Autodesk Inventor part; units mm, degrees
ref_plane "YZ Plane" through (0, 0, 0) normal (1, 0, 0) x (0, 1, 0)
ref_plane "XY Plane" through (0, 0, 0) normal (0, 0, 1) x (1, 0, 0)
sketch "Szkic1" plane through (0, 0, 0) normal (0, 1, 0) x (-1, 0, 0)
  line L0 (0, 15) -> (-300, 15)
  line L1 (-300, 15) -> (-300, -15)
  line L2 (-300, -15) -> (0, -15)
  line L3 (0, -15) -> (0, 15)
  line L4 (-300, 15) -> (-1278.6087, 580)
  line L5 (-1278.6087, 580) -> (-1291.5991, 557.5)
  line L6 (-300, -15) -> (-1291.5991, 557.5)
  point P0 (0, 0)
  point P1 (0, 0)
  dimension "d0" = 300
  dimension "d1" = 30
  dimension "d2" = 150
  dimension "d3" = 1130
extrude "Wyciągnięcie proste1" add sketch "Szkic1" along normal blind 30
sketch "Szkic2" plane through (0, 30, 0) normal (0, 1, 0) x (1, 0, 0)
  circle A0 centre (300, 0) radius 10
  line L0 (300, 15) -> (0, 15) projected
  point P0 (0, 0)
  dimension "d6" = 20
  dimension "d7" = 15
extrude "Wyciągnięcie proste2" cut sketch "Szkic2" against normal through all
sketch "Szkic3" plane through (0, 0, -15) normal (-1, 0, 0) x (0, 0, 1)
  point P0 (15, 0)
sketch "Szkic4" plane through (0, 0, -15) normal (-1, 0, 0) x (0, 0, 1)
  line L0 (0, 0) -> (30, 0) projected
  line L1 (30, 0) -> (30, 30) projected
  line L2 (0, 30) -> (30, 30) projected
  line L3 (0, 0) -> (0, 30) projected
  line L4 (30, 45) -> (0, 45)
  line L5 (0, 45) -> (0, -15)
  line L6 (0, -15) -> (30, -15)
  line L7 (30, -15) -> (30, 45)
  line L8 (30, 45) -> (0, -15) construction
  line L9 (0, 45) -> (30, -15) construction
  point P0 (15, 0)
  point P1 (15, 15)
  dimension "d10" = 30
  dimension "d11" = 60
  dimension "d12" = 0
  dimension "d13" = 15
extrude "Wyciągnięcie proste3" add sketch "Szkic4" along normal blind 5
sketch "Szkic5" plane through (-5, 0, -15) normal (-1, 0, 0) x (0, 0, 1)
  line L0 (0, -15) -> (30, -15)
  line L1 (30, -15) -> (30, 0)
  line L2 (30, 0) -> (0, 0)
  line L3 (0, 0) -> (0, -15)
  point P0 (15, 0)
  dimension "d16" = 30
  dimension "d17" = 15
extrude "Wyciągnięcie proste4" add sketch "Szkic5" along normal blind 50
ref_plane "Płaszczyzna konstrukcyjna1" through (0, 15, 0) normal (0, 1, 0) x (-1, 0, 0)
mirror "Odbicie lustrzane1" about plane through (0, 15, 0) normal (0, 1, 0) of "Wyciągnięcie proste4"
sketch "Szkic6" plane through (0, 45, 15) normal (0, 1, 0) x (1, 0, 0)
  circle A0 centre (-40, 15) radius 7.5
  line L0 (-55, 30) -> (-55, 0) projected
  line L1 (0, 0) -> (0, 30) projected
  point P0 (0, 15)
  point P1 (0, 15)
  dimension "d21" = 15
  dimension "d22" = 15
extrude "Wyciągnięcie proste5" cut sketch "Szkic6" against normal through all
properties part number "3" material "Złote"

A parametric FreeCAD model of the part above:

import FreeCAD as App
import Part
import Sketcher
from FreeCAD import Vector
Q = App.Units.Quantity


def add_polygon(sketch, points):
    """Adds a closed chain of lines whose ends are joined by coincident constraints."""
    first, n = sketch.GeometryCount, len(points)
    for a, b in zip(points, points[1:] + points[:1]):
        sketch.addGeometry(Part.LineSegment(App.Vector(*a, 0), App.Vector(*b, 0)), False)
    for i in range(n):
        sketch.addConstraint(Sketcher.Constraint("Coincident", first + i, 2, first + (i + 1) % n, 1))

doc = App.newDocument("Part")
body = doc.addObject("PartDesign::Body", "Body")

# Sketch on XZ plane
sketch1 = doc.addObject("Sketcher::SketchObject", "Sketch")
body.addObject(sketch1)
sketch1.AttachmentSupport = (doc.XZ_Plane, [""])
sketch1.MapMode = "FlatFace"
add_polygon(sketch1, [(0, -15), (0, 15), (300, 15), (1279, 580), (1292, 558), (300, -15)])  # lines 0-5
sketch1.addConstraint([
    Sketcher.Constraint("Vertical", 0),
    Sketcher.Constraint("Horizontal", 1),
    Sketcher.Constraint("Horizontal", 5),
    Sketcher.Constraint("Symmetric", 0, 2, 5, 2, -1, 1),
    Sketcher.Constraint("Perpendicular", 2, 3),
    Sketcher.Constraint("Perpendicular", 3, 4),
    Sketcher.Constraint("Vertical", 1, 2, 4, 2),
    Sketcher.Constraint("DistanceX", 1, 1, 1, 2, Q("300 mm")),
    Sketcher.Constraint("DistanceY", 0, 1, 0, 2, Q("30 mm")),
    Sketcher.Constraint("Angle", 2, Q("30 deg")),
    Sketcher.Constraint("Distance", 2, Q("1130 mm")),
])
pad1 = doc.addObject("PartDesign::Pad", "Pad")
body.addObject(pad1)
pad1.Profile = sketch1
pad1.Length = 30
pad1.Reversed = True

# Sketch on XZ plane
sketch2 = doc.addObject("Sketcher::SketchObject", "Sketch001")
body.addObject(sketch2)
sketch2.AttachmentSupport = (doc.XZ_Plane, [""])
sketch2.MapMode = "FlatFace"
sketch2.AttachmentOffset = App.Placement(Vector(0, 0, -30), App.Rotation())
sketch2.addGeometry(Part.Circle(Vector(300, 0, 0), Vector(0, 0, 1), 10), False)
sketch2.addConstraint([
    Sketcher.Constraint("PointOnObject", 0, 3, -1),
    Sketcher.Constraint("Diameter", 0, Q("20 mm")),
    Sketcher.Constraint("DistanceX", -1, 1, 0, 3, Q("300 mm")),
])
pocket1 = doc.addObject("PartDesign::Pocket", "Pocket")
body.addObject(pocket1)
pocket1.Profile = sketch2
pocket1.Type = "ThroughAll"
pocket1.Reversed = True

# Sketch on YZ plane
sketch3 = doc.addObject("Sketcher::SketchObject", "Sketch002")
body.addObject(sketch3)
sketch3.AttachmentSupport = (doc.YZ_Plane, [""])
sketch3.MapMode = "FlatFace"
add_polygon(sketch3, [(-15, -15), (-15, 15), (45, 15), (45, -15)])  # lines 0-3
sketch3.addConstraint([
    Sketcher.Constraint("Vertical", 0),
    Sketcher.Constraint("Horizontal", 1),
    Sketcher.Constraint("Vertical", 2),
    Sketcher.Constraint("Horizontal", 3),
    Sketcher.Constraint("DistanceX", 1, 1, 1, 2, Q("60 mm")),
    Sketcher.Constraint("DistanceY", 0, 1, 0, 2, Q("30 mm")),
    Sketcher.Constraint("DistanceX", 0, 2, -1, 1, Q("15 mm")),
    Sketcher.Constraint("DistanceY", -1, 1, 0, 2, Q("15 mm")),
])
pad2 = doc.addObject("PartDesign::Pad", "Pad001")
body.addObject(pad2)
pad2.Profile = sketch3
pad2.Length = 5
pad2.Reversed = True

# Sketch on YZ plane
sketch4 = doc.addObject("Sketcher::SketchObject", "Sketch003")
body.addObject(sketch4)
sketch4.AttachmentSupport = (doc.YZ_Plane, [""])
sketch4.MapMode = "FlatFace"
sketch4.AttachmentOffset = App.Placement(Vector(0, 0, -5), App.Rotation())
add_polygon(sketch4, [(0, -15), (-15, -15), (-15, 15), (0, 15)])  # lines 0-3
sketch4.addConstraint([
    Sketcher.Constraint("Horizontal", 0),
    Sketcher.Constraint("Vertical", 1),
    Sketcher.Constraint("Horizontal", 2),
    Sketcher.Constraint("Vertical", 3),
    Sketcher.Constraint("Symmetric", 2, 2, 3, 2, -1, 1),
    Sketcher.Constraint("DistanceX", 0, 2, 0, 1, Q("15 mm")),
    Sketcher.Constraint("DistanceY", 1, 1, 1, 2, Q("30 mm")),
])
pad3 = doc.addObject("PartDesign::Pad", "Pad002")
body.addObject(pad3)
pad3.Profile = sketch4
pad3.Length = 50
pad3.Reversed = True
doc.recompute()

datumplane = doc.addObject("PartDesign::Plane", "DatumPlane")
body.addObject(datumplane)
datumplane.AttachmentSupport = (doc.XZ_Plane, [""])
datumplane.MapMode = "FlatFace"
datumplane.AttachmentOffset = App.Placement(Vector(0, 0, -15), App.Rotation())
mirrored = doc.addObject("PartDesign::Mirrored", "Mirrored")
body.addObject(mirrored)
mirrored.Originals = [pad3]
mirrored.MirrorPlane = (datumplane, [""])
body.Tip = mirrored

# Sketch on XZ plane
sketch5 = doc.addObject("Sketcher::SketchObject", "Sketch004")
body.addObject(sketch5)
sketch5.AttachmentSupport = (doc.XZ_Plane, [""])
sketch5.MapMode = "FlatFace"
sketch5.AttachmentOffset = App.Placement(Vector(0, 0, -45), App.Rotation())
sketch5.addGeometry(Part.Circle(Vector(-40, 0, 0), Vector(0, 0, 1), 8), False)
sketch5.addConstraint([
    Sketcher.Constraint("PointOnObject", 0, 3, -1),
    Sketcher.Constraint("Diameter", 0, Q("15 mm")),
    Sketcher.Constraint("DistanceX", 0, 3, -1, 1, Q("40 mm")),
])
pocket2 = doc.addObject("PartDesign::Pocket", "Pocket001")
body.addObject(pocket2)
pocket2.Profile = sketch5
pocket2.Type = "ThroughAll"
pocket2.Reversed = True

doc.recompute()
